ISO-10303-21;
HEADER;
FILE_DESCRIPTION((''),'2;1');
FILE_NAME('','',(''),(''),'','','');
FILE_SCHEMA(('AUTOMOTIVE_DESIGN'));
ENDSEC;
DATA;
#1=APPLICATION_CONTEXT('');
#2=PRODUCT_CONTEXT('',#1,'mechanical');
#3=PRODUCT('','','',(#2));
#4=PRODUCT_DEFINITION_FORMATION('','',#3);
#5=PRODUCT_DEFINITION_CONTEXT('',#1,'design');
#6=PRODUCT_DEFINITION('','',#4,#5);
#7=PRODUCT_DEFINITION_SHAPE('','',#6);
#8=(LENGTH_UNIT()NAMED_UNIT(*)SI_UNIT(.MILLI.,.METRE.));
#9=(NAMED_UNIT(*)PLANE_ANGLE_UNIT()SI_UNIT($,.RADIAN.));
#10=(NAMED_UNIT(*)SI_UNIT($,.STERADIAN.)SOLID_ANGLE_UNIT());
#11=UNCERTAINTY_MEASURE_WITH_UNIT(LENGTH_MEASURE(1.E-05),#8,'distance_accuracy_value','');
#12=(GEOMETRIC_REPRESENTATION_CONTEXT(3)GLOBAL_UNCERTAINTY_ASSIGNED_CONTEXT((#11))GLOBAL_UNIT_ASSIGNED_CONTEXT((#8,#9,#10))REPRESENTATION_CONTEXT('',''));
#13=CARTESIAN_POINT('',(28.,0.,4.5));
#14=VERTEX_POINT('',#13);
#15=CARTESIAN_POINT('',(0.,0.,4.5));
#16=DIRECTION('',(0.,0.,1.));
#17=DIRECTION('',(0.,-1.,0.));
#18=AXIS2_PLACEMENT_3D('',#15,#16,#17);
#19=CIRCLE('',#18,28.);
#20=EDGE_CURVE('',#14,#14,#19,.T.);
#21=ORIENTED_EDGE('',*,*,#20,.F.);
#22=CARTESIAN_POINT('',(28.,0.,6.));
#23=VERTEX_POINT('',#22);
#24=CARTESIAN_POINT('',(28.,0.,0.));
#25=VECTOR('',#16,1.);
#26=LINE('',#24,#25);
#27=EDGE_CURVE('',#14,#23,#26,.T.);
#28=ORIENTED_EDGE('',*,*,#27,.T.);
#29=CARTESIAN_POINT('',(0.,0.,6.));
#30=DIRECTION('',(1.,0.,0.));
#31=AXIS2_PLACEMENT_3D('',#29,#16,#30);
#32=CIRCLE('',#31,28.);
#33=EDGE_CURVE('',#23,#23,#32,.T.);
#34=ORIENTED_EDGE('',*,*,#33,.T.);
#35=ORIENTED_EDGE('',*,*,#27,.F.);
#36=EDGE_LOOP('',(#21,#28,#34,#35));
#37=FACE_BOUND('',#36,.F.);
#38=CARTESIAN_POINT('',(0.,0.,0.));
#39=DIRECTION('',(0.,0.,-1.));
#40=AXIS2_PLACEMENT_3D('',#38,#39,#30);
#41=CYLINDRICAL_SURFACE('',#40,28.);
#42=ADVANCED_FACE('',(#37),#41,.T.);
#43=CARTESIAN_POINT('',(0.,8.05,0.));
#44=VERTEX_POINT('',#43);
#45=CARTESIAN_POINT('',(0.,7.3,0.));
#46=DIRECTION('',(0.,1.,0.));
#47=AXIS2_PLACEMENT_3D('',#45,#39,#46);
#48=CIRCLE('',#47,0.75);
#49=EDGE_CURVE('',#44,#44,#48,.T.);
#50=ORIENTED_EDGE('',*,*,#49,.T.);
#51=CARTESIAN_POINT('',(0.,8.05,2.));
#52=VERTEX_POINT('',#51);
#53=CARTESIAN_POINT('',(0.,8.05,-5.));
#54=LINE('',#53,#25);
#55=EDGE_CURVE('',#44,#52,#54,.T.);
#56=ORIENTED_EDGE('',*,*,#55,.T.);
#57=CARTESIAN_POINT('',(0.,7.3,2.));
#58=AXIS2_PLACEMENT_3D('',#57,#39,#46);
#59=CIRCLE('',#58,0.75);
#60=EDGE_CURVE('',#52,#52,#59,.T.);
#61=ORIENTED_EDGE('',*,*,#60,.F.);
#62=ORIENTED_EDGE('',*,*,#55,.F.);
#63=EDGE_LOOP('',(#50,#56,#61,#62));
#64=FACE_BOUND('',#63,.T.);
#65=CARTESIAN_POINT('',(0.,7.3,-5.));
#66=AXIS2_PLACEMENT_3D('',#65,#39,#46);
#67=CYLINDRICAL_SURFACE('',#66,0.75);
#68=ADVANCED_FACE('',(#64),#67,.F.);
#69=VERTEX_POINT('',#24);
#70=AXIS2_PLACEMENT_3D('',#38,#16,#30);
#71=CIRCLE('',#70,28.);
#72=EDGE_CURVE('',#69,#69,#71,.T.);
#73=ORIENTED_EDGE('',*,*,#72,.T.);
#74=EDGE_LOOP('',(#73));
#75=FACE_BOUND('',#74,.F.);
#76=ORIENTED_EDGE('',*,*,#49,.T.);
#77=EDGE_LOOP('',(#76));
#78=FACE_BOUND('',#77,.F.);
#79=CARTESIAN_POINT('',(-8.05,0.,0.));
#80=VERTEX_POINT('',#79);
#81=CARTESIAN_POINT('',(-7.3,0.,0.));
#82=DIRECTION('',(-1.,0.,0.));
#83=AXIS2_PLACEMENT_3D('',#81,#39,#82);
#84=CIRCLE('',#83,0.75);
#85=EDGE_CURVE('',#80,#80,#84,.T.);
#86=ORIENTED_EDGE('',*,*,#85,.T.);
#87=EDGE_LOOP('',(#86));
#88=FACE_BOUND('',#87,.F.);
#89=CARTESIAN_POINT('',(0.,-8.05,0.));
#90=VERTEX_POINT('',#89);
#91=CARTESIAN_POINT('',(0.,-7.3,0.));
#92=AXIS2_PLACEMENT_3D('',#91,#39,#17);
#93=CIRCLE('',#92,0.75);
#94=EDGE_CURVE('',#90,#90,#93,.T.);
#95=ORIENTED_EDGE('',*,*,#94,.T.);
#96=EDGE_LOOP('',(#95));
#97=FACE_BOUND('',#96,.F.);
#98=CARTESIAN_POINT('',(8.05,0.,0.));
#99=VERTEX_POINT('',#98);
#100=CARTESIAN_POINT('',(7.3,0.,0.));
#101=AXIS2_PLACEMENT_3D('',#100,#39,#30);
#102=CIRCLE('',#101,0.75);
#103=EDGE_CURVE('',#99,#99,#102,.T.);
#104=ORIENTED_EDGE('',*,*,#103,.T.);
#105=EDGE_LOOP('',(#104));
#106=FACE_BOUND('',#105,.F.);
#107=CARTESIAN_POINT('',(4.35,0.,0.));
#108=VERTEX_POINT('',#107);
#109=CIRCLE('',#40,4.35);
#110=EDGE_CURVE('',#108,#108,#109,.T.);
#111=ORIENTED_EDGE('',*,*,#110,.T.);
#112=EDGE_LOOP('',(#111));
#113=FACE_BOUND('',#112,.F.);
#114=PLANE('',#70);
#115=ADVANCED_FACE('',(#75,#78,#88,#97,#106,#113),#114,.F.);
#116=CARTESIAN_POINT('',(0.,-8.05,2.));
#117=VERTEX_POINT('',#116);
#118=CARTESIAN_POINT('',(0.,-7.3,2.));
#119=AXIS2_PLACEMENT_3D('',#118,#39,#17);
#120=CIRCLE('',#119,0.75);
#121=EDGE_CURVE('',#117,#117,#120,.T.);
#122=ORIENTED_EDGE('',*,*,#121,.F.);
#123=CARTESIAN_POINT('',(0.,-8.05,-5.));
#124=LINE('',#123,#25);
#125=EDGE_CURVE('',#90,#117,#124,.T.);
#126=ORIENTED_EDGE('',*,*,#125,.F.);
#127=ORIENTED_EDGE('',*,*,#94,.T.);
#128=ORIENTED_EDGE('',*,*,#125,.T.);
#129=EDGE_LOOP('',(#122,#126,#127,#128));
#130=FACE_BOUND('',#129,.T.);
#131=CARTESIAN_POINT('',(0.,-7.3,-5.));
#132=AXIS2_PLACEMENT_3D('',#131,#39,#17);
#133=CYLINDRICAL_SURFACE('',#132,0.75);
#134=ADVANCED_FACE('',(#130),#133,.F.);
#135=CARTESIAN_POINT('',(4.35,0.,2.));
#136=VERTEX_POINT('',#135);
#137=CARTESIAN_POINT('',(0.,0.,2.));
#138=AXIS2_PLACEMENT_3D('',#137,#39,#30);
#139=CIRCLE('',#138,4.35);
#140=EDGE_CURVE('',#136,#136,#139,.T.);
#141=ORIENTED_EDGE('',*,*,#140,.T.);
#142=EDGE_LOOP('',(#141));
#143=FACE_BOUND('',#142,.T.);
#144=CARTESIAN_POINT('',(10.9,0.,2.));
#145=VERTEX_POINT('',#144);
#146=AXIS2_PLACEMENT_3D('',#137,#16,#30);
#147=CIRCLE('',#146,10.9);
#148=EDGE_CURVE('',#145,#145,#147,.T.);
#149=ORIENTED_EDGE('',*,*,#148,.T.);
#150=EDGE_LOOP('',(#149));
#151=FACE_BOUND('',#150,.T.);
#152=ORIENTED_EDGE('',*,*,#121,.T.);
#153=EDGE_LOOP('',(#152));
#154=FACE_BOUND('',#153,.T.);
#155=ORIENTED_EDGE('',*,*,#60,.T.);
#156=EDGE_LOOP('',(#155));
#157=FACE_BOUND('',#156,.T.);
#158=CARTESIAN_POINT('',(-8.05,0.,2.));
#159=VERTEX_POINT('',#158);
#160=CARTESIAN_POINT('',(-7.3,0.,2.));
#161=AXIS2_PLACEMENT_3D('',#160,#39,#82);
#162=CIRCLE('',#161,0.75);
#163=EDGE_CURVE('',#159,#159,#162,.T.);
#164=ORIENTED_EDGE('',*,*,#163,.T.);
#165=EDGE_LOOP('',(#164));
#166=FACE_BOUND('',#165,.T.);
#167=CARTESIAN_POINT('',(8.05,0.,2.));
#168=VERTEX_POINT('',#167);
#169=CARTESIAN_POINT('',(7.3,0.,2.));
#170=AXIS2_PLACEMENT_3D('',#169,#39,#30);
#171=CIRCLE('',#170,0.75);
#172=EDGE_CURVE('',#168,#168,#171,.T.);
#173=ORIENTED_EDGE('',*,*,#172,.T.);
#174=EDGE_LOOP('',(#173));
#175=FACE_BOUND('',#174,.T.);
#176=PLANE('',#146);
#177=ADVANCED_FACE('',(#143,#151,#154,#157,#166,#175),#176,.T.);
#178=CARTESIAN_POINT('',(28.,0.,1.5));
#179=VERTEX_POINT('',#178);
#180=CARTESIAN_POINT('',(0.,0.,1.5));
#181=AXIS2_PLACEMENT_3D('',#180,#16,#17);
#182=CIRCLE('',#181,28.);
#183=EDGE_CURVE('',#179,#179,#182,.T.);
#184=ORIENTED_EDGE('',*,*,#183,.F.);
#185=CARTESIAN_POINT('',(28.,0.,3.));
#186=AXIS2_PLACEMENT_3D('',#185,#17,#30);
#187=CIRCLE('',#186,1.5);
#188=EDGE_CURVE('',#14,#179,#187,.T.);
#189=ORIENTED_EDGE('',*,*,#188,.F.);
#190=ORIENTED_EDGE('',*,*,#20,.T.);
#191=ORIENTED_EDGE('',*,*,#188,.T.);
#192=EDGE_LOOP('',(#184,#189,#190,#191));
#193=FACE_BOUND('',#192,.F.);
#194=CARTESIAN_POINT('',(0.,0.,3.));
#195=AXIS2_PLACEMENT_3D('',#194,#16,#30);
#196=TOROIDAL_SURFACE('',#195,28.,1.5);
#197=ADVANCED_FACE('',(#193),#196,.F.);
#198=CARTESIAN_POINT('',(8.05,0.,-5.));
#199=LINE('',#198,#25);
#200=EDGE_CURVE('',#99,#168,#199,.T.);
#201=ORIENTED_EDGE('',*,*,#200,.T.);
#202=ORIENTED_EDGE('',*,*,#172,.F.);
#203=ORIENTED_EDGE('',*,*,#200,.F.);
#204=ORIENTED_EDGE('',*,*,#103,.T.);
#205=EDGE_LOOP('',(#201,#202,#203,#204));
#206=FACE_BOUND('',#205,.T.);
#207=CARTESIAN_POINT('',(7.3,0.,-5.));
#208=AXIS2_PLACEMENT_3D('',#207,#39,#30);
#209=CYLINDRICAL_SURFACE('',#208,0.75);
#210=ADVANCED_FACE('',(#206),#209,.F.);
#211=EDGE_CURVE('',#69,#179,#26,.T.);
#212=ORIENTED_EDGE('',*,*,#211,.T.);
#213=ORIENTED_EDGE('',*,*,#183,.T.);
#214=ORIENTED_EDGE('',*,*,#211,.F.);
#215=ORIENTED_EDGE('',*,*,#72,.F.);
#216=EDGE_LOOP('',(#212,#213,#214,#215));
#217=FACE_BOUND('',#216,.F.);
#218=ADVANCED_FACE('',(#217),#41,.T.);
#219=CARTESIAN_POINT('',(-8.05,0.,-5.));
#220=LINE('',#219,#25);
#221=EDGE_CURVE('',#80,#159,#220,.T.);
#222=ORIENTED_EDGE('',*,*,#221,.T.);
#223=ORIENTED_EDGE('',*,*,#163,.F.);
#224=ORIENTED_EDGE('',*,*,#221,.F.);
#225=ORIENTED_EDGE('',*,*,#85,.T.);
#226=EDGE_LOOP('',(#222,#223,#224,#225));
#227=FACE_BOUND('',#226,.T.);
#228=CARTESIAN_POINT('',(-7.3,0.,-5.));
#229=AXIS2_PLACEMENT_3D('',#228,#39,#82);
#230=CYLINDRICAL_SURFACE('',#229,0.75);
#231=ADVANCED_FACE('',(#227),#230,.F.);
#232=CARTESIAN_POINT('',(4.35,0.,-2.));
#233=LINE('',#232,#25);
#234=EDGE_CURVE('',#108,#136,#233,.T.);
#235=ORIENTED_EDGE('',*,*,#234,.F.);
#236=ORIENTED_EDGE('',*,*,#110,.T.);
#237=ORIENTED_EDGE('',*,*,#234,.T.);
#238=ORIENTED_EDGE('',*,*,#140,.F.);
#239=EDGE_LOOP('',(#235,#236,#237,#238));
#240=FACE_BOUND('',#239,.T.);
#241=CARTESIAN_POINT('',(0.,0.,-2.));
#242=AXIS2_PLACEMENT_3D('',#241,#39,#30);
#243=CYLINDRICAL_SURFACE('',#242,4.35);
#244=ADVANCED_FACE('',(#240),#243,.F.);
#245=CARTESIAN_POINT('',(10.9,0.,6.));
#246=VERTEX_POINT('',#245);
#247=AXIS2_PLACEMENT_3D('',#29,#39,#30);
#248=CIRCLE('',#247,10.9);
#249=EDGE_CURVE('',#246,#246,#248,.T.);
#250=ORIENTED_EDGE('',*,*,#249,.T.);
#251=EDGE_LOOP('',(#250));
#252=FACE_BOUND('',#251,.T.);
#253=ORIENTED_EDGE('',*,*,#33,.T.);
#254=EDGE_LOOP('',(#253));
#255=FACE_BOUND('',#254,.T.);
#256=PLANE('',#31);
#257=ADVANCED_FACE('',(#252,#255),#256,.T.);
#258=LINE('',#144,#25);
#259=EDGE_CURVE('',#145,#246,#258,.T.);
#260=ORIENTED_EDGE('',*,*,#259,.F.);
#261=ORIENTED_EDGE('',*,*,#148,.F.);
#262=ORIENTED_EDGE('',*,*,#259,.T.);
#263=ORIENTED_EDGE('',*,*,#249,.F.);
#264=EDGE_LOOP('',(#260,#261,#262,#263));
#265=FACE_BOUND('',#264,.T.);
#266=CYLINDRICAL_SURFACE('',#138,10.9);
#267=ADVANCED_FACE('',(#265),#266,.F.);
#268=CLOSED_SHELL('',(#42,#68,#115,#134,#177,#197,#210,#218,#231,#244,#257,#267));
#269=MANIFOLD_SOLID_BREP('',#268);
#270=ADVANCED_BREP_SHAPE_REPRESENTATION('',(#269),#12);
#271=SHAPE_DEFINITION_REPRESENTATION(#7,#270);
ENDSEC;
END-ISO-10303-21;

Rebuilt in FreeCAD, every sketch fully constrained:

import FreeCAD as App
import Part
import Sketcher

V = App.Vector
Q = App.Units.Quantity

doc = App.newDocument("Part")
params = doc.addObject("Spreadsheet::Sheet", "Params")
for row, (alias, value) in enumerate([
    ("sketch1_diameter", "1.5 mm"),
    ("pad1_length", "10 mm"),
    ("sketch2_diameter", "8.7 mm"),
    ("pad2_length", "10 mm"),
    ("sketch3_diameter", "21.8 mm"),
    ("pad3_length", "10 mm"),
    ("sketch4_diameter", "3 mm"),
    ("revolution_angle", "360 deg"),
    ("sketch5_diameter", "56 mm"),
    ("pad4_length", "6 mm"),
], start=1):
    params.set(f"A{row}", alias)
    params.set(f"B{row}", "=" + value)
    params.setAlias(f"B{row}", alias)

body = doc.addObject("PartDesign::Body", "Body")

# Sketch on XY plane
sketch1 = doc.addObject("Sketcher::SketchObject", "Sketch")
body.addObject(sketch1)
sketch1.AttachmentSupport = (doc.XY_Plane, [""])
sketch1.MapMode = "FlatFace"
sketch1.AttachmentOffset = App.Placement(V(0, 0, -5), App.Rotation())
sketch1.addGeometry(Part.Circle(V(7.3, 0, 0), V(0, 0, 1), 0.75), False)
sketch1.addConstraint([
    Sketcher.Constraint("PointOnObject", 0, 3, -1),
    Sketcher.Constraint("Diameter", 0, Q("1.5 mm")),
    Sketcher.Constraint("DistanceX", -1, 1, 0, 3, Q("7.3 mm")),
])
sketch1.setExpression("Constraints[1]", "Params.sketch1_diameter")
pad1 = doc.addObject("PartDesign::Pad", "Pad")
body.addObject(pad1)
pad1.Profile = sketch1
pad1.setExpression("Length", "Params.pad1_length")
body2 = doc.addObject("PartDesign::Body", "Body001")
body2.AllowCompound = True
doc.recompute()

body2.BaseFeature = body
doc.recompute()

body3 = doc.addObject("PartDesign::Body", "Body002")
body3.BaseFeature = body
body3.Placement = App.Placement(V(0, 0, 0), App.Rotation(V(0, 0, 1), 90))
boolean = doc.addObject("PartDesign::Boolean", "Boolean")
body2.addObject(boolean)
boolean.Type = "Fuse"
boolean.addObjects([body3])
doc.recompute()

body4 = doc.addObject("PartDesign::Body", "Body003")
body4.BaseFeature = body
body4.Placement = App.Placement(V(0, 0, 0), App.Rotation(V(0, 0, 1), 180))
boolean2 = doc.addObject("PartDesign::Boolean", "Boolean001")
body2.addObject(boolean2)
boolean2.Type = "Fuse"
boolean2.addObjects([body4])
doc.recompute()

body.Placement = App.Placement(V(0, 0, 0), App.Rotation(V(0, 0, 1), 270))
boolean3 = doc.addObject("PartDesign::Boolean", "Boolean002")
body2.addObject(boolean3)
boolean3.Type = "Fuse"
boolean3.addObjects([body])
body5 = doc.addObject("PartDesign::Body", "Body004")

# Sketch on XY plane
sketch2 = doc.addObject("Sketcher::SketchObject", "Sketch001")
body5.addObject(sketch2)
sketch2.AttachmentSupport = (doc.getObject("XY_Plane004"), [""])
sketch2.MapMode = "FlatFace"
sketch2.AttachmentOffset = App.Placement(V(0, 0, -2), App.Rotation())
sketch2.addGeometry(Part.Circle(V(0, 0, 0), V(0, 0, 1), 4.35), False)
sketch2.addConstraint([
    Sketcher.Constraint("Coincident", 0, 3, -1, 1),
    Sketcher.Constraint("Diameter", 0, Q("8.7 mm")),
])
sketch2.setExpression("Constraints[1]", "Params.sketch2_diameter")
pad2 = doc.addObject("PartDesign::Pad", "Pad001")
body5.addObject(pad2)
pad2.Profile = sketch2
pad2.setExpression("Length", "Params.pad2_length")
body6 = doc.addObject("PartDesign::Body", "Body005")

# Sketch on XY plane
sketch3 = doc.addObject("Sketcher::SketchObject", "Sketch002")
body6.addObject(sketch3)
sketch3.AttachmentSupport = (doc.getObject("XY_Plane005"), [""])
sketch3.MapMode = "FlatFace"
sketch3.AttachmentOffset = App.Placement(V(0, 0, 2), App.Rotation())
sketch3.addGeometry(Part.Circle(V(0, 0, 0), V(0, 0, 1), 10.9), False)
sketch3.addConstraint([
    Sketcher.Constraint("Coincident", 0, 3, -1, 1),
    Sketcher.Constraint("Diameter", 0, Q("21.8 mm")),
])
sketch3.setExpression("Constraints[1]", "Params.sketch3_diameter")
pad3 = doc.addObject("PartDesign::Pad", "Pad002")
body6.addObject(pad3)
pad3.Profile = sketch3
pad3.setExpression("Length", "Params.pad3_length")
body7 = doc.addObject("PartDesign::Body", "Body006")

# Sketch on XZ plane
sketch4 = doc.addObject("Sketcher::SketchObject", "Sketch003")
body7.addObject(sketch4)
sketch4.AttachmentSupport = (doc.getObject("XZ_Plane006"), [""])
sketch4.MapMode = "FlatFace"
sketch4.addGeometry(Part.Circle(V(28, 3, 0), V(0, 0, 1), 1.5), False)
sketch4.addConstraint([
    Sketcher.Constraint("Diameter", 0, Q("3 mm")),
    Sketcher.Constraint("DistanceX", -1, 1, 0, 3, Q("28 mm")),
    Sketcher.Constraint("DistanceY", -1, 1, 0, 3, Q("3 mm")),
])
sketch4.setExpression("Constraints[0]", "Params.sketch4_diameter")
revolution = doc.addObject("PartDesign::Revolution", "Revolution")
body7.addObject(revolution)
revolution.Profile = sketch4
revolution.ReferenceAxis = (sketch4, ["V_Axis"])
revolution.setExpression("Angle", "Params.revolution_angle")
body8 = doc.addObject("PartDesign::Body", "Body007")

# Sketch on XY plane
sketch5 = doc.addObject("Sketcher::SketchObject", "Sketch004")
body8.addObject(sketch5)
sketch5.AttachmentSupport = (doc.getObject("XY_Plane007"), [""])
sketch5.MapMode = "FlatFace"
sketch5.addGeometry(Part.Circle(V(0, 0, 0), V(0, 0, 1), 28), False)
sketch5.addConstraint([
    Sketcher.Constraint("Coincident", 0, 3, -1, 1),
    Sketcher.Constraint("Diameter", 0, Q("56 mm")),
])
sketch5.setExpression("Constraints[1]", "Params.sketch5_diameter")
pad4 = doc.addObject("PartDesign::Pad", "Pad003")
body8.addObject(pad4)
pad4.Profile = sketch5
pad4.setExpression("Length", "Params.pad4_length")
doc.recompute()

boolean4 = doc.addObject("PartDesign::Boolean", "Boolean003")
body8.addObject(boolean4)
boolean4.Type = "Cut"
boolean4.addObjects([body7])
doc.recompute()

boolean5 = doc.addObject("PartDesign::Boolean", "Boolean004")
body8.addObject(boolean5)
boolean5.Type = "Cut"
boolean5.addObjects([body6])
doc.recompute()

boolean6 = doc.addObject("PartDesign::Boolean", "Boolean005")
body8.addObject(boolean6)
boolean6.Type = "Cut"
boolean6.addObjects([body5])
doc.recompute()

boolean7 = doc.addObject("PartDesign::Boolean", "Boolean006")
body8.addObject(boolean7)
boolean7.Type = "Cut"
boolean7.addObjects([body2])

doc.recompute()
